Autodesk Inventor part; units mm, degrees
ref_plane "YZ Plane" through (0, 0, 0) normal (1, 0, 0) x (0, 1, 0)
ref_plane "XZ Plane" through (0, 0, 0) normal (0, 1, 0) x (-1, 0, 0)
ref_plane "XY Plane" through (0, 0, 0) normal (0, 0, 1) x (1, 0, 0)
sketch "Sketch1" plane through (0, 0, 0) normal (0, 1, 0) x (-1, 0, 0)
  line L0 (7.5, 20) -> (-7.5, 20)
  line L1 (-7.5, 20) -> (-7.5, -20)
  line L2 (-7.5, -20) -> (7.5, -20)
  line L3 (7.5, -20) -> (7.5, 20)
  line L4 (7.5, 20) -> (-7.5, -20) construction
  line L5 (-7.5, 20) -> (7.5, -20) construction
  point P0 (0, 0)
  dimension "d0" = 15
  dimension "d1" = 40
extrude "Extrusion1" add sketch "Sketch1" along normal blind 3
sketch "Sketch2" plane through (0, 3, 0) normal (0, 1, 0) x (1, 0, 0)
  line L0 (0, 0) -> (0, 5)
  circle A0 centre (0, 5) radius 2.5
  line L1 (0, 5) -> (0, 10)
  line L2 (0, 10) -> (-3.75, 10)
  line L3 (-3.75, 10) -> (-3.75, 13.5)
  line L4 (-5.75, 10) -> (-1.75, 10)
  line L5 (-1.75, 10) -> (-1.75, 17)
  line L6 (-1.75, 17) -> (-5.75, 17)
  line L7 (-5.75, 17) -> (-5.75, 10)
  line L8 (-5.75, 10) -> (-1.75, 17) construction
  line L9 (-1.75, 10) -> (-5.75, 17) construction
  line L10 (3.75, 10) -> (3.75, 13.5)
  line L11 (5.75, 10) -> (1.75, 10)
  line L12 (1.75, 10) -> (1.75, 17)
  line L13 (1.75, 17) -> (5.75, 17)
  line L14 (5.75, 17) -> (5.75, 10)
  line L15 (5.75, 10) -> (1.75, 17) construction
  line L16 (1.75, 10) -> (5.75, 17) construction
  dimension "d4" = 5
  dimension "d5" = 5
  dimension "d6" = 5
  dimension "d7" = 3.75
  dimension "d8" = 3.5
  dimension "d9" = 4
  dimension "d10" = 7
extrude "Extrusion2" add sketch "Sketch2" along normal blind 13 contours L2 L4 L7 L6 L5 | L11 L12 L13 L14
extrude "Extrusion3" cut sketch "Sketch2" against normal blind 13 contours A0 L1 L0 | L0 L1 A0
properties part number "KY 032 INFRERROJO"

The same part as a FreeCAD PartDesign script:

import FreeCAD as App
import Part
import Sketcher


def add_polygon(sketch, points):
    """Adds a closed chain of lines whose ends are joined by coincident constraints."""
    first, n = sketch.GeometryCount, len(points)
    for a, b in zip(points, points[1:] + points[:1]):
        sketch.addGeometry(Part.LineSegment(App.Vector(*a, 0), App.Vector(*b, 0)), False)
    for i in range(n):
        sketch.addConstraint(Sketcher.Constraint("Coincident", first + i, 2, first + (i + 1) % n, 1))

doc = App.newDocument("Part")
params = doc.addObject("Spreadsheet::Sheet", "Params")
for row, (alias, value) in enumerate([
    ("sketch1_width", "15 mm"),
    ("sketch1_height", "40 mm"),
    ("pad1_length", "3 mm"),
    ("sketch2_width", "4 mm"),
    ("sketch2_height", "7 mm"),
    ("pad2_length", "13 mm"),
    ("sketch3_diameter", "5 mm"),
    ("pocket1_length", "13 mm"),
], start=1):
    params.set(f"A{row}", alias)
    params.set(f"B{row}", "=" + value)
    params.setAlias(f"B{row}", alias)

body = doc.addObject("PartDesign::Body", "Body")

sketch1 = body.newObject("Sketcher::SketchObject", "Sketch")
sketch1.AttachmentSupport = (doc.getObject("XZ_Plane"), [""])
sketch1.MapMode = "FlatFace"
add_polygon(sketch1, [(-8, -20), (-8, 20), (8, 20), (8, -20)])
sketch1.addConstraint(Sketcher.Constraint("Vertical", 0))
sketch1.addConstraint(Sketcher.Constraint("Horizontal", 1))
sketch1.addConstraint(Sketcher.Constraint("Vertical", 2))
sketch1.addConstraint(Sketcher.Constraint("Horizontal", 3))
sketch1.addConstraint(Sketcher.Constraint("Symmetric", 0, 2, 2, 2, -1, 1))
sketch1.addConstraint(Sketcher.Constraint("DistanceX", 1, 1, 1, 2, 15.0))
sketch1.addConstraint(Sketcher.Constraint("DistanceY", 0, 1, 0, 2, 40.0))
sketch1.setExpression("Constraints[9]", "Params.sketch1_width")
sketch1.setExpression("Constraints[10]", "Params.sketch1_height")
pad1 = body.newObject("PartDesign::Pad", "Pad")
pad1.Profile = sketch1
pad1.setExpression("Length", "Params.pad1_length")
pad1.Reversed = True

sketch2 = body.newObject("Sketcher::SketchObject", "Sketch001")
sketch2.AttachmentSupport = (doc.getObject("XZ_Plane"), [""])
sketch2.MapMode = "FlatFace"
sketch2.AttachmentOffset = App.Placement(App.Vector(0, 0, -3), App.Rotation())
add_polygon(sketch2, [(-5.8, -10), (-1.8, -10), (-1.8, -17), (-5.8, -17)])
add_polygon(sketch2, [(1.8, -10), (5.8, -10), (5.8, -17), (1.8, -17)])
sketch2.addConstraint(Sketcher.Constraint("Horizontal", 0))
sketch2.addConstraint(Sketcher.Constraint("Vertical", 1))
sketch2.addConstraint(Sketcher.Constraint("Horizontal", 2))
sketch2.addConstraint(Sketcher.Constraint("Vertical", 3))
sketch2.addConstraint(Sketcher.Constraint("Horizontal", 4))
sketch2.addConstraint(Sketcher.Constraint("Vertical", 5))
sketch2.addConstraint(Sketcher.Constraint("Horizontal", 6))
sketch2.addConstraint(Sketcher.Constraint("Vertical", 7))
sketch2.addConstraint(Sketcher.Constraint("Symmetric", 3, 2, 4, 2, -2))
sketch2.addConstraint(Sketcher.Constraint("Symmetric", 1, 2, 6, 2, -2))
sketch2.addConstraint(Sketcher.Constraint("DistanceX", 0, 1, 0, 2, 4.0))
sketch2.addConstraint(Sketcher.Constraint("DistanceY", 1, 2, 1, 1, 7.0))
sketch2.addConstraint(Sketcher.Constraint("DistanceX", 1, 2, 6, 2, 3.5))
sketch2.addConstraint(Sketcher.Constraint("DistanceY", 0, 2, -1, 1, 10.0))
sketch2.setExpression("Constraints[18]", "Params.sketch2_width")
sketch2.setExpression("Constraints[19]", "Params.sketch2_height")
pad2 = body.newObject("PartDesign::Pad", "Pad001")
pad2.Profile = sketch2
pad2.setExpression("Length", "Params.pad2_length")
pad2.Reversed = True

sketch3 = body.newObject("Sketcher::SketchObject", "Sketch002")
sketch3.AttachmentSupport = (doc.getObject("XZ_Plane"), [""])
sketch3.MapMode = "FlatFace"
sketch3.AttachmentOffset = App.Placement(App.Vector(0, 0, -3), App.Rotation())
sketch3.addGeometry(Part.Circle(App.Vector(0, -5, 0), App.Vector(0, 0, 1), 2.5), False)
sketch3.addConstraint(Sketcher.Constraint("PointOnObject", 0, 3, -2))
sketch3.addConstraint(Sketcher.Constraint("Diameter", 0, 5.0))
sketch3.addConstraint(Sketcher.Constraint("DistanceY", 0, 3, -1, 1, 5.0))
sketch3.setExpression("Constraints[1]", "Params.sketch3_diameter")
pocket1 = body.newObject("PartDesign::Pocket", "Pocket")
pocket1.Profile = sketch3
pocket1.setExpression("Length", "Params.pocket1_length")
pocket1.Reversed = True

doc.recompute()
